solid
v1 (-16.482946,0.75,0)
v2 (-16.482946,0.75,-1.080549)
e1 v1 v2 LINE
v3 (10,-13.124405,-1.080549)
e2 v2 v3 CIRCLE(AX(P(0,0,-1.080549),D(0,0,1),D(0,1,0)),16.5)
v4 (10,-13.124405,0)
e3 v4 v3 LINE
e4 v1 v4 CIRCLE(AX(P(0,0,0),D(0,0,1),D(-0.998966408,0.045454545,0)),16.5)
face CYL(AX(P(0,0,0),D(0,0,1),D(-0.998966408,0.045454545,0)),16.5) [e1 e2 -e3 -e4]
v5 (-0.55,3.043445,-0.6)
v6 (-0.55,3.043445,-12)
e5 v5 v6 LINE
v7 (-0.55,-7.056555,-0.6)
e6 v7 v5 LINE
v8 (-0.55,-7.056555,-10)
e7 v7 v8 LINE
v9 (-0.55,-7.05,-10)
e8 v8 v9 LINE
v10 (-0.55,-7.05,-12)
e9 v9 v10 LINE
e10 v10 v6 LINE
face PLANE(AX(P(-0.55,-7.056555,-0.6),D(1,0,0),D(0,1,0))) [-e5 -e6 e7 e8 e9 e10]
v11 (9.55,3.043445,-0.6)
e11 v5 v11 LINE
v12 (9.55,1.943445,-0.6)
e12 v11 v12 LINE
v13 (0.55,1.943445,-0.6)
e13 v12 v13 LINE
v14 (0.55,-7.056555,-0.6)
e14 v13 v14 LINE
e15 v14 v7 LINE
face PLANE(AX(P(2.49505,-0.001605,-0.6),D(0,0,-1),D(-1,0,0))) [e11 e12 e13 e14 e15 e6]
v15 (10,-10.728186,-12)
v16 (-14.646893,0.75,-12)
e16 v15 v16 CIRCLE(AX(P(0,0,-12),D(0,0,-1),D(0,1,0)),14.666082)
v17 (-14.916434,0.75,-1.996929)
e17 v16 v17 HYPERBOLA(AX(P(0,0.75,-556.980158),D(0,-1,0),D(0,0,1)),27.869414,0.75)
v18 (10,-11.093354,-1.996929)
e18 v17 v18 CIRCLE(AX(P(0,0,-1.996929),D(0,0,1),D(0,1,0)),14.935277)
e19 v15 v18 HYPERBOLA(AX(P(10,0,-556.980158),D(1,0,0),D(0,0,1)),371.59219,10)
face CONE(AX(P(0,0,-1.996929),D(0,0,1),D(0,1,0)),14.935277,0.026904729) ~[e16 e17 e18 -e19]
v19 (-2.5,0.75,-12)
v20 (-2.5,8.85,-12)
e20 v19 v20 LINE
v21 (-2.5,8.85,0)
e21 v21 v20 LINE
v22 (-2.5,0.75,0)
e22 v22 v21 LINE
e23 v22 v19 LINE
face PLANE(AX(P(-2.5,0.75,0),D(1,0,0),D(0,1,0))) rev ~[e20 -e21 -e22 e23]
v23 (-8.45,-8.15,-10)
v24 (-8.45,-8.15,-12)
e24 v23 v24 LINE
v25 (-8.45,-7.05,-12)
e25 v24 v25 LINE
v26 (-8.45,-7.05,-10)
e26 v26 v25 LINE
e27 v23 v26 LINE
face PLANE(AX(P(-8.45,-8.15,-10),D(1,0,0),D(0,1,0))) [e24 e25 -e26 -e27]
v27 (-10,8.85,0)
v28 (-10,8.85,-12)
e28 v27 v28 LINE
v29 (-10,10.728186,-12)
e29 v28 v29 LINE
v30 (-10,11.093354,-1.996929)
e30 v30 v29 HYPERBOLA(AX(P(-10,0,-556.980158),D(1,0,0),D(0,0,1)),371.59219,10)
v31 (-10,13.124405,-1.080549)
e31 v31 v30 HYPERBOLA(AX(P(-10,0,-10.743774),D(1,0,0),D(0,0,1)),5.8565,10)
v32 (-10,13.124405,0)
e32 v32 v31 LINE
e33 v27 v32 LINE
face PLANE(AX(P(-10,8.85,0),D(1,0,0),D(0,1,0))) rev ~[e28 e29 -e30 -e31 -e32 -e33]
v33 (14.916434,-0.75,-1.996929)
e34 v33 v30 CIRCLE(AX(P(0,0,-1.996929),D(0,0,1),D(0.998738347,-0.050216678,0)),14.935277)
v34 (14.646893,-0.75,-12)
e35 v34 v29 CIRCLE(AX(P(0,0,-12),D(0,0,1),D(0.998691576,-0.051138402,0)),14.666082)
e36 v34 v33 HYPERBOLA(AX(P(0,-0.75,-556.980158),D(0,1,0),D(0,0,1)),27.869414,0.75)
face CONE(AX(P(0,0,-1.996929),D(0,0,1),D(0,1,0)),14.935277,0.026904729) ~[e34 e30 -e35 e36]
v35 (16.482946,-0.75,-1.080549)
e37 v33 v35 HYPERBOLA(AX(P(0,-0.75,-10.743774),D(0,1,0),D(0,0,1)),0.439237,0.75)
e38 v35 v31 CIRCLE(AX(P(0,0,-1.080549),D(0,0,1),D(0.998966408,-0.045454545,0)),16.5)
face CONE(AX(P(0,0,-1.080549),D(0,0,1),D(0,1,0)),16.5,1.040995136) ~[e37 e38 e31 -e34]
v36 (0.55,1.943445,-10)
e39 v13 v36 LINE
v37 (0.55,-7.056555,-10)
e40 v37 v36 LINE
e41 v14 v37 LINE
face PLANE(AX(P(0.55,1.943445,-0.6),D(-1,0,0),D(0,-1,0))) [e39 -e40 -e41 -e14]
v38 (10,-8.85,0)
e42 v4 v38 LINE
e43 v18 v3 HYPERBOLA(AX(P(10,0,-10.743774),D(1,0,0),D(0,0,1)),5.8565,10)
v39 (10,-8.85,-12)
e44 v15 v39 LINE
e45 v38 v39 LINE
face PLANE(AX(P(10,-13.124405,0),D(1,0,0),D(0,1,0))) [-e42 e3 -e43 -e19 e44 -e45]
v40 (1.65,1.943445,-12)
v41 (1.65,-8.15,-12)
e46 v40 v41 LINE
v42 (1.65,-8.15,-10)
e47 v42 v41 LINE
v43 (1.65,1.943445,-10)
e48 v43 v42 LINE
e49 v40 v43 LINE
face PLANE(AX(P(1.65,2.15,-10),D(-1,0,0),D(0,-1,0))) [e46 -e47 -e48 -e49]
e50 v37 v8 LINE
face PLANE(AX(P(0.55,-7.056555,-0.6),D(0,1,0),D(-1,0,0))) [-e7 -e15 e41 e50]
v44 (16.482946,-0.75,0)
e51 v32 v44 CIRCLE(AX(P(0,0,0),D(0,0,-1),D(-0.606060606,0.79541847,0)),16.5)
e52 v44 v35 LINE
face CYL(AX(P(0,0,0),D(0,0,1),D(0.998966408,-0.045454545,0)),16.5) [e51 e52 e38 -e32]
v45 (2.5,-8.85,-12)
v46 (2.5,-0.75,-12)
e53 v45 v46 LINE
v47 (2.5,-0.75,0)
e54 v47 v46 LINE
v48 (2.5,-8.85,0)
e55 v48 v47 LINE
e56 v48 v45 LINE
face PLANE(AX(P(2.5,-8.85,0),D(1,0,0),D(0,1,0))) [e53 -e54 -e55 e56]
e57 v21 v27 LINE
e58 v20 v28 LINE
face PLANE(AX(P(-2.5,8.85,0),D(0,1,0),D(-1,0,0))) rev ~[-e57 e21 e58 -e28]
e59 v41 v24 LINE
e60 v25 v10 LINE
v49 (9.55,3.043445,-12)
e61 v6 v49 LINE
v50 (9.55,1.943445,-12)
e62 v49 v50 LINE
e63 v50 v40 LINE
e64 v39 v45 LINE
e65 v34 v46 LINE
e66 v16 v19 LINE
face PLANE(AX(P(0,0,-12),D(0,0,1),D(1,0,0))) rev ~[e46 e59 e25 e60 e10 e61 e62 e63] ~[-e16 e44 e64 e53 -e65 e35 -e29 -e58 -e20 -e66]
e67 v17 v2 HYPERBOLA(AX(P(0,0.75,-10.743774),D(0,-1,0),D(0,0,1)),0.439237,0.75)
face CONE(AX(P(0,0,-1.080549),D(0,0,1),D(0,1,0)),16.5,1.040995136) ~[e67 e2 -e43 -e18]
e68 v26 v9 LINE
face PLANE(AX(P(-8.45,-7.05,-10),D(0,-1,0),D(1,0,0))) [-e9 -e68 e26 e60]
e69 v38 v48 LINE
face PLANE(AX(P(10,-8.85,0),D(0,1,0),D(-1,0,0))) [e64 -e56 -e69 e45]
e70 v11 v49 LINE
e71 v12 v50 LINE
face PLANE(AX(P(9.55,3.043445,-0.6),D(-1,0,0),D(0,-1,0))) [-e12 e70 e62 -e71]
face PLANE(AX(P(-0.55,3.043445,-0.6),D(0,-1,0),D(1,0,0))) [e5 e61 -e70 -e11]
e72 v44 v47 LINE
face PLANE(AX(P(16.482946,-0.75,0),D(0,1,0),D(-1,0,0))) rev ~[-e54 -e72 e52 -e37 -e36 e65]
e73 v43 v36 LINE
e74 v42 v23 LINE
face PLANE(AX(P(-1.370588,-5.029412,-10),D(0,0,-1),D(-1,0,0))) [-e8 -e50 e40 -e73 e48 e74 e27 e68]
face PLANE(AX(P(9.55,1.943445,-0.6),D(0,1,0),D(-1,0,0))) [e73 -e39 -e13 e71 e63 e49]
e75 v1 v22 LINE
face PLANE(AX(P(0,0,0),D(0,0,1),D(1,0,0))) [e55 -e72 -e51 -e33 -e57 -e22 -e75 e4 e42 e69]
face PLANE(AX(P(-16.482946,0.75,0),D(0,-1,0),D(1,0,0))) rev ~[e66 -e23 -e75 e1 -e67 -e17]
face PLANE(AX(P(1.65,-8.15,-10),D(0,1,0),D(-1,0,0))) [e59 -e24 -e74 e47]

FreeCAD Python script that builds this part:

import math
import FreeCAD as App
import Part
import Sketcher
from FreeCAD import Vector

doc = App.newDocument("Part")
params = doc.addObject("Spreadsheet::Sheet", "Params")
for row, (alias, value) in enumerate([
    ("sketch1_radius", "16.5 mm"),
    ("sketch1_width", "7.5 mm"),
    ("sketch1_height", "8.1 mm"),
    ("pad1_length", "12 mm"),
    ("sketch2_width", "9 mm"),
    ("sketch2_width2", "10.1 mm"),
    ("sketch3_width", "9 mm"),
    ("sketch3_width2", "1.1 mm"),
    ("sketch3_height", "9.2 mm"),
    ("pocket2_length", "5 mm"),
    ("groove_angle", "360 deg"),
], start=1):
    params.set(f"A{row}", alias)
    params.set(f"B{row}", "=" + value)
    params.setAlias(f"B{row}", alias)

body = doc.addObject("PartDesign::Body", "Body")

# Sketch on XY plane
sketch1 = body.newObject("Sketcher::SketchObject", "Sketch")
sketch1.AttachmentSupport = (doc.getObject("XY_Plane"), [""])
sketch1.MapMode = "FlatFace"
sketch1.addGeometry(Part.ArcOfCircle(Part.Circle(Vector(0, 0, 0), Vector(0, 0, 1), 16.5), math.radians(-3), math.radians(127)), False)
sketch1.addGeometry(Part.LineSegment(Vector(-10, 13.1, 0), Vector(-10, 8.8, 0)), False)
sketch1.addGeometry(Part.LineSegment(Vector(-10, 8.8, 0), Vector(-2.5, 8.8, 0)), False)
sketch1.addGeometry(Part.LineSegment(Vector(-2.5, 8.8, 0), Vector(-2.5, 0.8, 0)), False)
sketch1.addGeometry(Part.LineSegment(Vector(-2.5, 0.8, 0), Vector(-16.5, 0.8, 0)), False)
sketch1.addGeometry(Part.ArcOfCircle(Part.Circle(Vector(0, 0, 0), Vector(0, 0, 1), 16.5), math.radians(177), math.radians(307)), False)
sketch1.addGeometry(Part.LineSegment(Vector(10, -13.1, 0), Vector(10, -8.8, 0)), False)
sketch1.addGeometry(Part.LineSegment(Vector(10, -8.8, 0), Vector(2.5, -8.8, 0)), False)
sketch1.addGeometry(Part.LineSegment(Vector(2.5, -8.8, 0), Vector(2.5, -0.8, 0)), False)
sketch1.addGeometry(Part.LineSegment(Vector(2.5, -0.8, 0), Vector(16.5, -0.8, 0)), False)
sketch1.addConstraint(Sketcher.Constraint("Coincident", 0, 2, 1, 1))
sketch1.addConstraint(Sketcher.Constraint("Coincident", 1, 2, 2, 1))
sketch1.addConstraint(Sketcher.Constraint("Coincident", 2, 2, 3, 1))
sketch1.addConstraint(Sketcher.Constraint("Coincident", 3, 2, 4, 1))
sketch1.addConstraint(Sketcher.Constraint("Coincident", 4, 2, 5, 1))
sketch1.addConstraint(Sketcher.Constraint("Coincident", 5, 2, 6, 1))
sketch1.addConstraint(Sketcher.Constraint("Coincident", 6, 2, 7, 1))
sketch1.addConstraint(Sketcher.Constraint("Coincident", 7, 2, 8, 1))
sketch1.addConstraint(Sketcher.Constraint("Coincident", 8, 2, 9, 1))
sketch1.addConstraint(Sketcher.Constraint("Coincident", 9, 2, 0, 1))
sketch1.addConstraint(Sketcher.Constraint("Vertical", 1))
sketch1.addConstraint(Sketcher.Constraint("Horizontal", 2))
sketch1.addConstraint(Sketcher.Constraint("Vertical", 3))
sketch1.addConstraint(Sketcher.Constraint("Horizontal", 4))
sketch1.addConstraint(Sketcher.Constraint("Vertical", 6))
sketch1.addConstraint(Sketcher.Constraint("Horizontal", 7))
sketch1.addConstraint(Sketcher.Constraint("Vertical", 8))
sketch1.addConstraint(Sketcher.Constraint("Horizontal", 9))
sketch1.addConstraint(Sketcher.Constraint("Coincident", 0, 3, -1, 1))
sketch1.addConstraint(Sketcher.Constraint("Coincident", 5, 3, -1, 1))
sketch1.addConstraint(Sketcher.Constraint("Equal", 0, 5))
sketch1.addConstraint(Sketcher.Constraint("Symmetric", 1, 2, 6, 2, -1, 1))
sketch1.addConstraint(Sketcher.Constraint("Symmetric", 3, 2, 8, 2, -1, 1))
sketch1.addConstraint(Sketcher.Constraint("Radius", 0, 16.5))
sketch1.addConstraint(Sketcher.Constraint("DistanceX", 2, 1, 2, 2, 7.5))
sketch1.addConstraint(Sketcher.Constraint("DistanceY", 3, 2, 3, 1, 8.1))
sketch1.addConstraint(Sketcher.Constraint("DistanceX", 0, 2, -1, 1, 10.0))
sketch1.addConstraint(Sketcher.Constraint("DistanceY", 6, 2, 3, 2, 9.6))
sketch1.setExpression("Constraints[23]", "Params.sketch1_radius")
sketch1.setExpression("Constraints[24]", "Params.sketch1_width")
sketch1.setExpression("Constraints[25]", "Params.sketch1_height")
pad1 = body.newObject("PartDesign::Pad", "Pad")
pad1.Profile = sketch1
pad1.setExpression("Length", "Params.pad1_length")
pad1.Reversed = True

# Sketch on XY plane
sketch2 = body.newObject("Sketcher::SketchObject", "Sketch001")
sketch2.AttachmentSupport = (doc.getObject("XY_Plane"), [""])
sketch2.MapMode = "FlatFace"
sketch2.AttachmentOffset = App.Placement(Vector(0, 0, -0.6), App.Rotation())
sketch2.addGeometry(Part.LineSegment(Vector(9.6, 3, 0), Vector(-0.6, 3, 0)), False)
sketch2.addGeometry(Part.LineSegment(Vector(-0.6, 3, 0), Vector(-0.6, -7.1, 0)), False)
sketch2.addGeometry(Part.LineSegment(Vector(-0.6, -7.1, 0), Vector(0.6, -7.1, 0)), False)
sketch2.addGeometry(Part.LineSegment(Vector(0.6, -7.1, 0), Vector(0.6, 1.9, 0)), False)
sketch2.addGeometry(Part.LineSegment(Vector(0.6, 1.9, 0), Vector(9.6, 1.9, 0)), False)
sketch2.addGeometry(Part.LineSegment(Vector(9.6, 1.9, 0), Vector(9.6, 3, 0)), False)
sketch2.addConstraint(Sketcher.Constraint("Coincident", 0, 2, 1, 1))
sketch2.addConstraint(Sketcher.Constraint("Coincident", 1, 2, 2, 1))
sketch2.addConstraint(Sketcher.Constraint("Coincident", 2, 2, 3, 1))
sketch2.addConstraint(Sketcher.Constraint("Coincident", 3, 2, 4, 1))
sketch2.addConstraint(Sketcher.Constraint("Coincident", 4, 2, 5, 1))
sketch2.addConstraint(Sketcher.Constraint("Coincident", 5, 2, 0, 1))
sketch2.addConstraint(Sketcher.Constraint("Horizontal", 0))
sketch2.addConstraint(Sketcher.Constraint("Vertical", 1))
sketch2.addConstraint(Sketcher.Constraint("Horizontal", 2))
sketch2.addConstraint(Sketcher.Constraint("Vertical", 3))
sketch2.addConstraint(Sketcher.Constraint("Horizontal", 4))
sketch2.addConstraint(Sketcher.Constraint("Vertical", 5))
sketch2.addConstraint(Sketcher.Constraint("Equal", 0, 1))
sketch2.addConstraint(Sketcher.Constraint("Equal", 4, 3))
sketch2.addConstraint(Sketcher.Constraint("DistanceX", 4, 1, 4, 2, 9.0))
sketch2.addConstraint(Sketcher.Constraint("DistanceX", 0, 2, 0, 1, 10.1))
sketch2.addConstraint(Sketcher.Constraint("DistanceX", 0, 2, -1, 1, 0.55))
sketch2.addConstraint(Sketcher.Constraint("DistanceY", -1, 1, 0, 2, 3.043445))
sketch2.setExpression("Constraints[14]", "Params.sketch2_width")
sketch2.setExpression("Constraints[15]", "Params.sketch2_width2")
pocket1 = body.newObject("PartDesign::Pocket", "Pocket")
pocket1.Profile = sketch2
pocket1.Type = "ThroughAll"

# Sketch on XY plane
sketch3 = body.newObject("Sketcher::SketchObject", "Sketch002")
sketch3.AttachmentSupport = (doc.getObject("XY_Plane"), [""])
sketch3.MapMode = "FlatFace"
sketch3.AttachmentOffset = App.Placement(Vector(0, 0, -10), App.Rotation())
sketch3.addGeometry(Part.LineSegment(Vector(1.6, 2.1, 0), Vector(0.6, 2.1, 0)), False)
sketch3.addGeometry(Part.LineSegment(Vector(0.6, 2.1, 0), Vector(0.6, -7, 0)), False)
sketch3.addGeometry(Part.LineSegment(Vector(0.6, -7, 0), Vector(-8.4, -7, 0)), False)
sketch3.addGeometry(Part.LineSegment(Vector(-8.4, -7, 0), Vector(-8.4, -8.2, 0)), False)
sketch3.addGeometry(Part.LineSegment(Vector(-8.4, -8.2, 0), Vector(1.6, -8.2, 0)), False)
sketch3.addGeometry(Part.LineSegment(Vector(1.6, -8.2, 0), Vector(1.6, 2.1, 0)), False)
sketch3.addConstraint(Sketcher.Constraint("Coincident", 0, 2, 1, 1))
sketch3.addConstraint(Sketcher.Constraint("Coincident", 1, 2, 2, 1))
sketch3.addConstraint(Sketcher.Constraint("Coincident", 2, 2, 3, 1))
sketch3.addConstraint(Sketcher.Constraint("Coincident", 3, 2, 4, 1))
sketch3.addConstraint(Sketcher.Constraint("Coincident", 4, 2, 5, 1))
sketch3.addConstraint(Sketcher.Constraint("Coincident", 5, 2, 0, 1))
sketch3.addConstraint(Sketcher.Constraint("Horizontal", 0))
sketch3.addConstraint(Sketcher.Constraint("Vertical", 1))
sketch3.addConstraint(Sketcher.Constraint("Horizontal", 2))
sketch3.addConstraint(Sketcher.Constraint("Vertical", 3))
sketch3.addConstraint(Sketcher.Constraint("Horizontal", 4))
sketch3.addConstraint(Sketcher.Constraint("Vertical", 5))
sketch3.addConstraint(Sketcher.Constraint("Equal", 0, 3))
sketch3.addConstraint(Sketcher.Constraint("DistanceX", 2, 2, 2, 1, 9.0))
sketch3.addConstraint(Sketcher.Constraint("DistanceX", 0, 2, 0, 1, 1.1))
sketch3.addConstraint(Sketcher.Constraint("DistanceY", 1, 2, 1, 1, 9.2))
sketch3.addConstraint(Sketcher.Constraint("DistanceX", -1, 1, 0, 2, 0.55))
sketch3.addConstraint(Sketcher.Constraint("DistanceY", -1, 1, 0, 2, 2.15))
sketch3.setExpression("Constraints[13]", "Params.sketch3_width")
sketch3.setExpression("Constraints[14]", "Params.sketch3_width2")
sketch3.setExpression("Constraints[15]", "Params.sketch3_height")
pocket2 = body.newObject("PartDesign::Pocket", "Pocket001")
pocket2.Profile = sketch3
pocket2.setExpression("Length", "Params.pocket2_length")

# Sketch on YZ plane
sketch4 = body.newObject("Sketcher::SketchObject", "Sketch003")
sketch4.AttachmentSupport = (doc.getObject("YZ_Plane"), [""])
sketch4.MapMode = "FlatFace"
sketch4.addGeometry(Part.LineSegment(Vector(16.5, 0, 0), Vector(16.5, -1.1, 0)), False)
sketch4.addGeometry(Part.LineSegment(Vector(16.5, -1.1, 0), Vector(14.9, -2, 0)), False)
sketch4.addGeometry(Part.LineSegment(Vector(14.9, -2, 0), Vector(14.6, -13.5, 0)), False)
sketch4.addGeometry(Part.LineSegment(Vector(14.6, -13.5, 0), Vector(22.5, -13.5, 0)), False)
sketch4.addGeometry(Part.LineSegment(Vector(22.5, -13.5, 0), Vector(22.5, 0, 0)), False)
sketch4.addGeometry(Part.LineSegment(Vector(22.5, 0, 0), Vector(16.5, 0, 0)), False)
sketch4.addConstraint(Sketcher.Constraint("Coincident", 0, 2, 1, 1))
sketch4.addConstraint(Sketcher.Constraint("Coincident", 1, 2, 2, 1))
sketch4.addConstraint(Sketcher.Constraint("Coincident", 2, 2, 3, 1))
sketch4.addConstraint(Sketcher.Constraint("Coincident", 3, 2, 4, 1))
sketch4.addConstraint(Sketcher.Constraint("Coincident", 4, 2, 5, 1))
sketch4.addConstraint(Sketcher.Constraint("Coincident", 5, 2, 0, 1))
sketch4.addConstraint(Sketcher.Constraint("Vertical", 0))
sketch4.addConstraint(Sketcher.Constraint("Horizontal", 3))
sketch4.addConstraint(Sketcher.Constraint("Vertical", 4))
sketch4.addConstraint(Sketcher.Constraint("Horizontal", 5))
sketch4.addConstraint(Sketcher.Constraint("PointOnObject", 4, 2, -1))
sketch4.addConstraint(Sketcher.Constraint("DistanceX", -1, 1, 0, 2, 16.5))
sketch4.addConstraint(Sketcher.Constraint("DistanceX", -1, 1, 2, 2, 14.625))
sketch4.addConstraint(Sketcher.Constraint("DistanceY", 0, 2, 0, 1, 1.080549))
sketch4.addConstraint(Sketcher.Constraint("DistanceY", 4, 1, 4, 2, 13.52658))
sketch4.addConstraint(Sketcher.Constraint("DistanceX", 3, 1, 3, 2, 7.836165))
sketch4.addConstraint(Sketcher.Constraint("DistanceY", 1, 2, -1, 1, 1.996929))
sketch4.addConstraint(Sketcher.Constraint("DistanceX", 1, 2, 3, 2, 7.525888))
groove = body.newObject("PartDesign::Groove", "Groove")
groove.Profile = sketch4
groove.ReferenceAxis = (sketch4, ["V_Axis"])
groove.setExpression("Angle", "Params.groove_angle")

doc.recompute()
